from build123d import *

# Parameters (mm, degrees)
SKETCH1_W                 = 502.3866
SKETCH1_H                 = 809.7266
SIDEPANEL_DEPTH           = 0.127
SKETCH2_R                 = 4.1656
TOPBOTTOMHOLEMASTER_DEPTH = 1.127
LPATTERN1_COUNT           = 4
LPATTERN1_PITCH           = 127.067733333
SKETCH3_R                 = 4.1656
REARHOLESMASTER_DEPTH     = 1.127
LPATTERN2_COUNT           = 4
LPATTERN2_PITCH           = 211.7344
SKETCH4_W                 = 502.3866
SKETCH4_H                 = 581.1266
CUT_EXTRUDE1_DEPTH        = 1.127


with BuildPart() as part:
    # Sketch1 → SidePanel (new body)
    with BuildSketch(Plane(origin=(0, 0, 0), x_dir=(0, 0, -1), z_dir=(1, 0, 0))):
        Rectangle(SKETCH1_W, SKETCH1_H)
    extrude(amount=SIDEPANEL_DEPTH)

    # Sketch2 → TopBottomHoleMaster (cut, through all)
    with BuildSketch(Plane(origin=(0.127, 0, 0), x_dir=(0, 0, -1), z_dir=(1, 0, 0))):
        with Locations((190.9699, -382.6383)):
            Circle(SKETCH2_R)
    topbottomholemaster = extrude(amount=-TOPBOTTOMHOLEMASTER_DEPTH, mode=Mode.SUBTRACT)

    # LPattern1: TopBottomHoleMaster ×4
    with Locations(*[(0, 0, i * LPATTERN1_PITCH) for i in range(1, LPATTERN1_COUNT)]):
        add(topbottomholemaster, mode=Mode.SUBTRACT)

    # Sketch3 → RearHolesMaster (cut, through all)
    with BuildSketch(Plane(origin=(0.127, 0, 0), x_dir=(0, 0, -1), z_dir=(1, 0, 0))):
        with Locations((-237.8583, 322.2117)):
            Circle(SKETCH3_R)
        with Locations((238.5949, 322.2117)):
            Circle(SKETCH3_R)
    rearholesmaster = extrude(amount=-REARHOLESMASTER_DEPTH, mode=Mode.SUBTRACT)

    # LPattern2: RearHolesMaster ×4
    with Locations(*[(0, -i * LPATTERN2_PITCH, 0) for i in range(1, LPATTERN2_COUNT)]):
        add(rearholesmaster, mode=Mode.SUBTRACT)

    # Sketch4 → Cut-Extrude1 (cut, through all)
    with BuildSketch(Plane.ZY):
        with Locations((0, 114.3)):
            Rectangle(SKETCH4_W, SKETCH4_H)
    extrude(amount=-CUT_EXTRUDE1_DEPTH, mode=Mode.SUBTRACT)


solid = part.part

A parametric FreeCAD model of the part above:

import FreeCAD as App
import Part
import Sketcher

V = App.Vector
Q = App.Units.Quantity


def add_polygon(sketch, points):
    """Adds a closed chain of lines whose ends are joined by coincident constraints."""
    first, n = sketch.GeometryCount, len(points)
    for a, b in zip(points, points[1:] + points[:1]):
        sketch.addGeometry(Part.LineSegment(App.Vector(*a, 0), App.Vector(*b, 0)), False)
    for i in range(n):
        sketch.addConstraint(Sketcher.Constraint("Coincident", first + i, 2, first + (i + 1) % n, 1))

doc = App.newDocument("Part")
body = doc.addObject("PartDesign::Body", "Body")

sketch1 = doc.addObject("Sketcher::SketchObject", "Sketch")
body.addObject(sketch1)
sketch1.AttachmentSupport = (doc.YZ_Plane, [""])
sketch1.MapMode = "FlatFace"
add_polygon(sketch1, [(405, 251), (-405, 251), (-405, -251), (405, -251)])
sketch1.addConstraint([
    Sketcher.Constraint("Horizontal", 0),
    Sketcher.Constraint("Vertical", 1),
    Sketcher.Constraint("Horizontal", 2),
    Sketcher.Constraint("Vertical", 3),
    Sketcher.Constraint("Symmetric", 0, 2, 2, 2, -1, 1),
    Sketcher.Constraint("DistanceX", 0, 2, 0, 1, Q("31.879 in")),
    Sketcher.Constraint("DistanceY", 1, 2, 1, 1, Q("19.779 in")),
])
pad1 = doc.addObject("PartDesign::Pad", "Pad")
body.addObject(pad1)
pad1.Profile = sketch1
pad1.Length = Q("0.005 in")

sketch2 = doc.addObject("Sketcher::SketchObject", "Sketch001")
body.addObject(sketch2)
sketch2.AttachmentSupport = (doc.YZ_Plane, [""])
sketch2.MapMode = "FlatFace"
sketch2.AttachmentOffset = App.Placement(V(0, 0, 0.005 * 25.4), App.Rotation())
sketch2.addGeometry(Part.Circle(V(-382.6, -191, 0), V(0, 0, 1), 4.2), False)
sketch2.addConstraint([
    Sketcher.Constraint("Diameter", 0, Q("0.328 in")),
    Sketcher.Constraint("DistanceX", 0, 3, -1, 1, Q("15.0645 in")),
    Sketcher.Constraint("DistanceY", 0, 3, -1, 1, Q("7.5185 in")),
])
pocket1 = doc.addObject("PartDesign::Pocket", "Pocket")
body.addObject(pocket1)
pocket1.Profile = sketch2
pocket1.Type = "ThroughAll"
doc.recompute()

linearpattern = doc.addObject("PartDesign::LinearPattern", "LinearPattern")
body.addObject(linearpattern)
linearpattern.Originals = [pocket1]
linearpattern.Direction = (doc.Z_Axis, [""])
linearpattern.Mode = "offset"
linearpattern.Offset = 127.067733
linearpattern.Occurrences = 4
body.Tip = linearpattern

sketch3 = doc.addObject("Sketcher::SketchObject", "Sketch002")
body.addObject(sketch3)
sketch3.AttachmentSupport = (doc.YZ_Plane, [""])
sketch3.MapMode = "FlatFace"
sketch3.AttachmentOffset = App.Placement(V(0, 0, 0.005 * 25.4), App.Rotation())
sketch3.addGeometry([
    Part.Circle(V(322.2, 237.9, 0), V(0, 0, 1), 4.2),
    Part.Circle(V(322.2, -238.6, 0), V(0, 0, 1), 4.2),
], False)
sketch3.addConstraint([
    Sketcher.Constraint("Equal", 0, 1),
    Sketcher.Constraint("Vertical", 0, 3, 1, 3),
    Sketcher.Constraint("Diameter", 0, Q("0.328 in")),
    Sketcher.Constraint("DistanceY", 1, 3, 0, 3, Q("18.758 in")),
    Sketcher.Constraint("DistanceX", -1, 1, 0, 3, Q("12.6855 in")),
    Sketcher.Constraint("DistanceY", -1, 1, 0, 3, Q("9.3645 in")),
])
pocket2 = doc.addObject("PartDesign::Pocket", "Pocket001")
body.addObject(pocket2)
pocket2.Profile = sketch3
pocket2.Type = "ThroughAll"
doc.recompute()

linearpattern2 = doc.addObject("PartDesign::LinearPattern", "LinearPattern001")
body.addObject(linearpattern2)
linearpattern2.Originals = [pocket2]
linearpattern2.Direction = (doc.Y_Axis, [""])
linearpattern2.Mode = "offset"
linearpattern2.Offset = Q("8.336 in")
linearpattern2.Occurrences = 4
linearpattern2.Reversed = True
body.Tip = linearpattern2

sketch4 = doc.addObject("Sketcher::SketchObject", "Sketch003")
body.addObject(sketch4)
sketch4.AttachmentSupport = (doc.YZ_Plane, [""])
sketch4.MapMode = "FlatFace"
add_polygon(sketch4, [(405, -251), (-176, -251), (-176, 251), (405, 251)])
sketch4.addConstraint([
    Sketcher.Constraint("Horizontal", 0),
    Sketcher.Constraint("Vertical", 1),
    Sketcher.Constraint("Horizontal", 2),
    Sketcher.Constraint("Vertical", 3),
    Sketcher.Constraint("DistanceX", 0, 2, 0, 1, Q("22.879 in")),
    Sketcher.Constraint("DistanceY", 1, 1, 1, 2, Q("19.779 in")),
    Sketcher.Constraint("DistanceX", 0, 2, -1, 1, Q("6.9395 in")),
    Sketcher.Constraint("DistanceY", 0, 2, -1, 1, Q("9.8895 in")),
])
pocket3 = doc.addObject("PartDesign::Pocket", "Pocket002")
body.addObject(pocket3)
pocket3.Profile = sketch4
pocket3.Type = "ThroughAll"
pocket3.Reversed = True

doc.recompute()
